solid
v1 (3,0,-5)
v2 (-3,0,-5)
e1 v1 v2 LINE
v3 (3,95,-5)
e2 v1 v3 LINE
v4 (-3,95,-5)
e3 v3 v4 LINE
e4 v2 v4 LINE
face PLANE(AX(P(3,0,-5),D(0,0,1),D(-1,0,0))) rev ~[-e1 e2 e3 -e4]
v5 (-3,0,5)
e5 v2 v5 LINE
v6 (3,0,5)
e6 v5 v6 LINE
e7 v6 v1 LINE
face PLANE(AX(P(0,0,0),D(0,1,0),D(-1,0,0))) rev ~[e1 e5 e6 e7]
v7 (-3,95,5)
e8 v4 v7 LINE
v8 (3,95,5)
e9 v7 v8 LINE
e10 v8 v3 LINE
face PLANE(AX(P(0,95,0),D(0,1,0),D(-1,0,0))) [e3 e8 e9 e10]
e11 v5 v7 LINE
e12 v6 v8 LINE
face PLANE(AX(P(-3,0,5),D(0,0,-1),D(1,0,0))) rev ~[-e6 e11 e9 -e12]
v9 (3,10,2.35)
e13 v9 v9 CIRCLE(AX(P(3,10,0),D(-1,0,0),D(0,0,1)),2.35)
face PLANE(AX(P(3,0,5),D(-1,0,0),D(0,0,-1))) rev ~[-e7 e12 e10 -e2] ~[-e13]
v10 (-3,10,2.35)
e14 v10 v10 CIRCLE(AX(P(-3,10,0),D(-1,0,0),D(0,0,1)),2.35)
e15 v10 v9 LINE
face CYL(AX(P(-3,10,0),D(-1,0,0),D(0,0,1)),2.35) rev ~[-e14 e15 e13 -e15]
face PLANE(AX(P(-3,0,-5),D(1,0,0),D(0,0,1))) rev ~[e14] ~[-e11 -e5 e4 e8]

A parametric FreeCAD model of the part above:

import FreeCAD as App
import Part
import Sketcher
from FreeCAD import Vector
Q = App.Units.Quantity

doc = App.newDocument("Part")
params = doc.addObject("Spreadsheet::Sheet", "Params")
for row, (alias, value) in enumerate([
    ("sketch1_width", "6 mm"),
    ("sketch1_height", "10 mm"),
    ("pad1_length", "95 mm"),
    ("sketch2_diameter", "4.7 mm"),
], start=1):
    params.set(f"A{row}", alias)
    params.set(f"B{row}", "=" + value)
    params.setAlias(f"B{row}", alias)

body = doc.addObject("PartDesign::Body", "Body")

# Sketch on XZ plane
sketch1 = body.newObject("Sketcher::SketchObject", "Sketch")
sketch1.AttachmentSupport = (doc.getObject("XZ_Plane"), [""])
sketch1.MapMode = "FlatFace"
sketch1.addGeometry([
    Part.LineSegment(Vector(3, 5, 0), Vector(3, -5, 0)),
    Part.LineSegment(Vector(3, -5, 0), Vector(-3, -5, 0)),
    Part.LineSegment(Vector(-3, -5, 0), Vector(-3, 5, 0)),
    Part.LineSegment(Vector(-3, 5, 0), Vector(3, 5, 0)),
], False)
sketch1.addConstraint([
    Sketcher.Constraint("Coincident", 0, 2, 1, 1),
    Sketcher.Constraint("Coincident", 1, 2, 2, 1),
    Sketcher.Constraint("Coincident", 2, 2, 3, 1),
    Sketcher.Constraint("Coincident", 3, 2, 0, 1),
    Sketcher.Constraint("Vertical", 0),
    Sketcher.Constraint("Horizontal", 1),
    Sketcher.Constraint("Vertical", 2),
    Sketcher.Constraint("Horizontal", 3),
    Sketcher.Constraint("Symmetric", 0, 2, 2, 2, -1, 1),
    Sketcher.Constraint("DistanceX", 1, 2, 1, 1, Q("6 mm")),
    Sketcher.Constraint("DistanceY", 0, 2, 0, 1, Q("10 mm")),
])
sketch1.setExpression("Constraints[9]", "Params.sketch1_width")
sketch1.setExpression("Constraints[10]", "Params.sketch1_height")
pad1 = body.newObject("PartDesign::Pad", "Pad")
pad1.Profile = sketch1
pad1.setExpression("Length", "Params.pad1_length")
pad1.Reversed = True

# Sketch on YZ plane
sketch2 = body.newObject("Sketcher::SketchObject", "Sketch001")
sketch2.AttachmentSupport = (doc.getObject("YZ_Plane"), [""])
sketch2.MapMode = "FlatFace"
sketch2.AttachmentOffset = App.Placement(Vector(0, 0, -3), App.Rotation())
sketch2.addGeometry(Part.Circle(Vector(10, 0, 0), Vector(0, 0, 1), 2.35), False)
sketch2.addConstraint([
    Sketcher.Constraint("PointOnObject", 0, 3, -1),
    Sketcher.Constraint("Diameter", 0, Q("4.7 mm")),
    Sketcher.Constraint("DistanceX", -1, 1, 0, 3, Q("10 mm")),
])
sketch2.setExpression("Constraints[1]", "Params.sketch2_diameter")
pocket1 = body.newObject("PartDesign::Pocket", "Pocket")
pocket1.Profile = sketch2
pocket1.Type = "UpToFirst"
pocket1.Reversed = True

doc.recompute()
